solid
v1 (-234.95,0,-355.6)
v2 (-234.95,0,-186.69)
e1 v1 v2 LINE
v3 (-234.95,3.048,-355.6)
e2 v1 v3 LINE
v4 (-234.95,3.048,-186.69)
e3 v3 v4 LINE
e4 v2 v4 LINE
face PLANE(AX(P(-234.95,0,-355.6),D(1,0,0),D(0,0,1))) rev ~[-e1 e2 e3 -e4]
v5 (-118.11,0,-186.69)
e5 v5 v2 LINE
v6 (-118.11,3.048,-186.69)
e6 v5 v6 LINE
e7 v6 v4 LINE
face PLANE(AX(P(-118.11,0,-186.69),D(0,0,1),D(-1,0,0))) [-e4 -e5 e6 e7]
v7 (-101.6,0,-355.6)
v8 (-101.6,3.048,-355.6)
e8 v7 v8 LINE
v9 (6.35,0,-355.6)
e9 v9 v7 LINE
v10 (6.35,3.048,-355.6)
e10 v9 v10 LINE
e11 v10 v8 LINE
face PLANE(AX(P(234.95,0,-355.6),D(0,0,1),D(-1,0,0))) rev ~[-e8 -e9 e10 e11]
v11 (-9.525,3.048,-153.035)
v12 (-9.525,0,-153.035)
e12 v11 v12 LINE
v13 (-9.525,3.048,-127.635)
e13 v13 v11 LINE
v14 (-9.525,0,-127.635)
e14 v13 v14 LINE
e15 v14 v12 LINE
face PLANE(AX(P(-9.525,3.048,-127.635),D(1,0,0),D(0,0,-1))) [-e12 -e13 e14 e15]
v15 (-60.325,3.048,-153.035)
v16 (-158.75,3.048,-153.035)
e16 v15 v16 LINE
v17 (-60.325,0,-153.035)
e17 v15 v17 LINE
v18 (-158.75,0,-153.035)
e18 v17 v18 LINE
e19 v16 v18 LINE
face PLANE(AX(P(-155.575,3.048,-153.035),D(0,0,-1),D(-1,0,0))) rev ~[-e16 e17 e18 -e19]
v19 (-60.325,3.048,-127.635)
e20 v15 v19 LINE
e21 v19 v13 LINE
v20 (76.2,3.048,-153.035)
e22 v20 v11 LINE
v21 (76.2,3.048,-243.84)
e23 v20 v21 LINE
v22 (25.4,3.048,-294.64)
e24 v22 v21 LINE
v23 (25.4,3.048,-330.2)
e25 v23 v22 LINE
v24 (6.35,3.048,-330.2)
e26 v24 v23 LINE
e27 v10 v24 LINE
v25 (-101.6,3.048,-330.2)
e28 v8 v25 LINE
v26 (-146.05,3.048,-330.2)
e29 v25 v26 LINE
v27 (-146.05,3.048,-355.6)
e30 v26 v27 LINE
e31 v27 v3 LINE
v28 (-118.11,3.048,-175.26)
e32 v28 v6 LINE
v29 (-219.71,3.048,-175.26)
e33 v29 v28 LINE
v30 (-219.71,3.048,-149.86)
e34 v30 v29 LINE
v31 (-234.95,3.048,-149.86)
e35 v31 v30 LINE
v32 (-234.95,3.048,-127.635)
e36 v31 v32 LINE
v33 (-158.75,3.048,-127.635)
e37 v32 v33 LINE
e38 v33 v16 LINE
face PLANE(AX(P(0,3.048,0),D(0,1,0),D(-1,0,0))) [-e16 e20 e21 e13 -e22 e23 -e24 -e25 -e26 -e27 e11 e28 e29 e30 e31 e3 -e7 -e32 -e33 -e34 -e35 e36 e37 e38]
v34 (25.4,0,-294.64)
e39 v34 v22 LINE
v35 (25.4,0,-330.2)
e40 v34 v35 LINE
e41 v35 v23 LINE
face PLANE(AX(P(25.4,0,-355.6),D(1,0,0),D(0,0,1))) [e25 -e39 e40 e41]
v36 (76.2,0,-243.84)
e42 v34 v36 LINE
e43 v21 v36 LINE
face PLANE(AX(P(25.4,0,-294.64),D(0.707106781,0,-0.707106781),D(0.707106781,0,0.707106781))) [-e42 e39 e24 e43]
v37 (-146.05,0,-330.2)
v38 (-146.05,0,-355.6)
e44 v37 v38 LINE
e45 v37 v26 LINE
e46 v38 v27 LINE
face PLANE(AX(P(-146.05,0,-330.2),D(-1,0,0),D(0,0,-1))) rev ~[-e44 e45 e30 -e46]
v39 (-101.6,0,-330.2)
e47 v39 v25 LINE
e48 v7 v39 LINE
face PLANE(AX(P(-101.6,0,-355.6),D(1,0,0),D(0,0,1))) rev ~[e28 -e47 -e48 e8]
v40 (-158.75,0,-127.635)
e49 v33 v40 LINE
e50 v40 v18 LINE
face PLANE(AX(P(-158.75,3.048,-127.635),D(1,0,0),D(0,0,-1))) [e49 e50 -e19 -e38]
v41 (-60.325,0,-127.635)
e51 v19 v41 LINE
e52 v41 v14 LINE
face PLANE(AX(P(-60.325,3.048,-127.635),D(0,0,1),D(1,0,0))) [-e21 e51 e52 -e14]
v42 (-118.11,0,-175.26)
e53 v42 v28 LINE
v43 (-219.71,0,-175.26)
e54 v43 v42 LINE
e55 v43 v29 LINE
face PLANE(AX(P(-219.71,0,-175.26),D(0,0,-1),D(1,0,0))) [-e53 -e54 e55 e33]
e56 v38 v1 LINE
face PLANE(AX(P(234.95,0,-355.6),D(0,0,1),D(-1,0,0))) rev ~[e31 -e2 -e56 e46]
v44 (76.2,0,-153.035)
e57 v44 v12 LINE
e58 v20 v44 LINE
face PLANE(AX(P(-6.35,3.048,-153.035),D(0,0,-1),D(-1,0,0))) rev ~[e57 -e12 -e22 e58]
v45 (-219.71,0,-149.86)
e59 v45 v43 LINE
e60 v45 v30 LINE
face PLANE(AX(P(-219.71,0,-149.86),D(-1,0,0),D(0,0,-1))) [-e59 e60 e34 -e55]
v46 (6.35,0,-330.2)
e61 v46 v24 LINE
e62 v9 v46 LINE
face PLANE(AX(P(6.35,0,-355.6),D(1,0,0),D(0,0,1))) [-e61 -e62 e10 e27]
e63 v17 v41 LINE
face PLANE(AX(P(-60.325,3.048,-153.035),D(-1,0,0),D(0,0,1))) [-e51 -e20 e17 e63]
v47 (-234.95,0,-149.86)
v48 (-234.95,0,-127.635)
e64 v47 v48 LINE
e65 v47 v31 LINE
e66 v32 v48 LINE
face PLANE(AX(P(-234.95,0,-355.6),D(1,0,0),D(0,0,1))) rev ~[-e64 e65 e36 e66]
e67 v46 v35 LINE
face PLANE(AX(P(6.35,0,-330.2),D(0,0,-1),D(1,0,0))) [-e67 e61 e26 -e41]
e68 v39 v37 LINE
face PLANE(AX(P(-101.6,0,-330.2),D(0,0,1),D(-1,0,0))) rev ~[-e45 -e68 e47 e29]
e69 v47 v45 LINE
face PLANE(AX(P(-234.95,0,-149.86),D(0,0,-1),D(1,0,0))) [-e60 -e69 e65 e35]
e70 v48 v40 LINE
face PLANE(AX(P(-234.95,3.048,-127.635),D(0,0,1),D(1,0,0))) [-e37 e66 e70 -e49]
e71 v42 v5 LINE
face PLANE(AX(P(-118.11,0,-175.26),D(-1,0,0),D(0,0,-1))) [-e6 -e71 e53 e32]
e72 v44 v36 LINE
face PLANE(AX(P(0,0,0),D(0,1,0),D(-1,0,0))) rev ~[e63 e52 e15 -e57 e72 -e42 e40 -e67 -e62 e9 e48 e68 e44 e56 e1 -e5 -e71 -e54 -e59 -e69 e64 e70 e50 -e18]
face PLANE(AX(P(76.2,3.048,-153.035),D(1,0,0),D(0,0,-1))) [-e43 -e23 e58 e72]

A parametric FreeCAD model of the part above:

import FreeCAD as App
import Part
import Sketcher
Q = App.Units.Quantity

doc = App.newDocument("Part")
params = doc.addObject("Spreadsheet::Sheet", "Params")
for row, (alias, value) in enumerate([
    ("sketch1_height", "28 in"),
    ("sketch1_width", "18.5 in"),
    ("pad1_length", "0.12 in"),
    ("sketch2_width", "4 in"),
    ("sketch2_width2", "3 in"),
    ("sketch2_height", "1 in"),
    ("sketch2_width3", "5.7 in"),
    ("sketch2_height2", "2.4 in"),
    ("pocket1_length", "0.12 in"),
    ("sketch3_height", "1 in"),
    ("sketch3_width", "0.75 in"),
    ("sketch3_width2", "1.75 in"),
    ("pocket2_length", "0.12 in"),
    ("sketch4_width", "2 in"),
    ("sketch4_width2", "3 in"),
    ("sketch4_height", "1 in"),
    ("sketch4_width3", "4 in"),
    ("sketch4_width4", "5.7 in"),
    ("sketch5_width", "3.5 in"),
    ("sketch5_height", "3.575 in"),
], start=1):
    params.set(f"A{row}", alias)
    params.set(f"B{row}", "=" + value)
    params.setAlias(f"B{row}", alias)

body = doc.addObject("PartDesign::Body", "Body")

# Sketch on XZ plane
sketch1 = body.newObject("Sketcher::SketchObject", "Sketch")
sketch1.AttachmentSupport = (doc.getObject("XZ_Plane"), [""])
sketch1.MapMode = "FlatFace"
sketch1.addGeometry(Part.LineSegment(App.Vector(-235, -356, 0), App.Vector(-235, 356, 0)), False)
sketch1.addGeometry(Part.LineSegment(App.Vector(-235, 356, 0), App.Vector(235, 356, 0)), False)
sketch1.addGeometry(Part.LineSegment(App.Vector(235, 356, 0), App.Vector(235, -356, 0)), False)
sketch1.addGeometry(Part.LineSegment(App.Vector(235, -356, 0), App.Vector(-235, -356, 0)), False)
sketch1.addConstraint(Sketcher.Constraint("Coincident", 0, 2, 1, 1))
sketch1.addConstraint(Sketcher.Constraint("Coincident", 1, 2, 2, 1))
sketch1.addConstraint(Sketcher.Constraint("Coincident", 2, 2, 3, 1))
sketch1.addConstraint(Sketcher.Constraint("Coincident", 3, 2, 0, 1))
sketch1.addConstraint(Sketcher.Constraint("Vertical", 0))
sketch1.addConstraint(Sketcher.Constraint("Horizontal", 1))
sketch1.addConstraint(Sketcher.Constraint("Vertical", 2))
sketch1.addConstraint(Sketcher.Constraint("Horizontal", 3))
sketch1.addConstraint(Sketcher.Constraint("Symmetric", 0, 2, 2, 2, -1, 1))
sketch1.addConstraint(Sketcher.Constraint("DistanceY", 0, 1, 0, 2, Q("28 in")))
sketch1.addConstraint(Sketcher.Constraint("DistanceX", 1, 1, 1, 2, Q("18.5 in")))
sketch1.setExpression("Constraints[9]", "Params.sketch1_height")
sketch1.setExpression("Constraints[10]", "Params.sketch1_width")
pad1 = body.newObject("PartDesign::Pad", "Pad")
pad1.Profile = sketch1
pad1.setExpression("Length", "Params.pad1_length")
pad1.Reversed = True

# Sketch on XZ plane
sketch2 = body.newObject("Sketcher::SketchObject", "Sketch001")
sketch2.AttachmentSupport = (doc.getObject("XZ_Plane"), [""])
sketch2.MapMode = "FlatFace"
sketch2.addGeometry(Part.LineSegment(App.Vector(-118, 187, 0), App.Vector(-235, 187, 0)), False)
sketch2.addGeometry(Part.LineSegment(App.Vector(-235, 187, 0), App.Vector(-235, 150, 0)), False)
sketch2.addGeometry(Part.LineSegment(App.Vector(-235, 150, 0), App.Vector(-220, 150, 0)), False)
sketch2.addGeometry(Part.LineSegment(App.Vector(-220, 150, 0), App.Vector(-220, 175, 0)), False)
sketch2.addGeometry(Part.LineSegment(App.Vector(-220, 175, 0), App.Vector(-118, 175, 0)), False)
sketch2.addGeometry(Part.LineSegment(App.Vector(-118, 175, 0), App.Vector(-118, 187, 0)), False)
sketch2.addGeometry(Part.LineSegment(App.Vector(235, 356, 0), App.Vector(25, 356, 0)), False)
sketch2.addGeometry(Part.LineSegment(App.Vector(25, 356, 0), App.Vector(25, 295, 0)), False)
sketch2.addGeometry(Part.LineSegment(App.Vector(25, 295, 0), App.Vector(165, 155, 0)), False)
sketch2.addGeometry(Part.LineSegment(App.Vector(165, 155, 0), App.Vector(165, 89, 0)), False)
sketch2.addGeometry(Part.LineSegment(App.Vector(165, 89, 0), App.Vector(20, 89, 0)), False)
sketch2.addGeometry(Part.LineSegment(App.Vector(20, 89, 0), App.Vector(20, -130, 0)), False)
sketch2.addGeometry(Part.LineSegment(App.Vector(20, -130, 0), App.Vector(165, -130, 0)), False)
sketch2.addGeometry(Part.LineSegment(App.Vector(165, -130, 0), App.Vector(165, -155, 0)), False)
sketch2.addGeometry(Part.LineSegment(App.Vector(165, -155, 0), App.Vector(25, -295, 0)), False)
sketch2.addGeometry(Part.LineSegment(App.Vector(25, -295, 0), App.Vector(25, -356, 0)), False)
sketch2.addGeometry(Part.LineSegment(App.Vector(25, -356, 0), App.Vector(235, -356, 0)), False)
sketch2.addGeometry(Part.LineSegment(App.Vector(235, -356, 0), App.Vector(235, 356, 0)), False)
sketch2.addGeometry(Part.LineSegment(App.Vector(-159, 36, 0), App.Vector(-235, 36, 0)), False)
sketch2.addGeometry(Part.LineSegment(App.Vector(-235, 36, 0), App.Vector(-235, -43, 0)), False)
sketch2.addGeometry(Part.LineSegment(App.Vector(-235, -43, 0), App.Vector(-159, -43, 0)), False)
sketch2.addGeometry(Part.LineSegment(App.Vector(-159, -43, 0), App.Vector(-159, 36, 0)), False)
sketch2.addGeometry(Part.LineSegment(App.Vector(-220, -150, 0), App.Vector(-235, -150, 0)), False)
sketch2.addGeometry(Part.LineSegment(App.Vector(-235, -150, 0), App.Vector(-235, -187, 0)), False)
sketch2.addGeometry(Part.LineSegment(App.Vector(-235, -187, 0), App.Vector(-118, -187, 0)), False)
sketch2.addGeometry(Part.LineSegment(App.Vector(-118, -187, 0), App.Vector(-118, -175, 0)), False)
sketch2.addGeometry(Part.LineSegment(App.Vector(-118, -175, 0), App.Vector(-220, -175, 0)), False)
sketch2.addGeometry(Part.LineSegment(App.Vector(-220, -175, 0), App.Vector(-220, -150, 0)), False)
sketch2.addConstraint(Sketcher.Constraint("Coincident", 0, 2, 1, 1))
sketch2.addConstraint(Sketcher.Constraint("Coincident", 1, 2, 2, 1))
sketch2.addConstraint(Sketcher.Constraint("Coincident", 2, 2, 3, 1))
sketch2.addConstraint(Sketcher.Constraint("Coincident", 3, 2, 4, 1))
sketch2.addConstraint(Sketcher.Constraint("Coincident", 4, 2, 5, 1))
sketch2.addConstraint(Sketcher.Constraint("Coincident", 5, 2, 0, 1))
sketch2.addConstraint(Sketcher.Constraint("Coincident", 6, 2, 7, 1))
sketch2.addConstraint(Sketcher.Constraint("Coincident", 7, 2, 8, 1))
sketch2.addConstraint(Sketcher.Constraint("Coincident", 8, 2, 9, 1))
sketch2.addConstraint(Sketcher.Constraint("Coincident", 9, 2, 10, 1))
sketch2.addConstraint(Sketcher.Constraint("Coincident", 10, 2, 11, 1))
sketch2.addConstraint(Sketcher.Constraint("Coincident", 11, 2, 12, 1))
sketch2.addConstraint(Sketcher.Constraint("Coincident", 12, 2, 13, 1))
sketch2.addConstraint(Sketcher.Constraint("Coincident", 13, 2, 14, 1))
sketch2.addConstraint(Sketcher.Constraint("Coincident", 14, 2, 15, 1))
sketch2.addConstraint(Sketcher.Constraint("Coincident", 15, 2, 16, 1))
sketch2.addConstraint(Sketcher.Constraint("Coincident", 16, 2, 17, 1))
sketch2.addConstraint(Sketcher.Constraint("Coincident", 17, 2, 6, 1))
sketch2.addConstraint(Sketcher.Constraint("Coincident", 18, 2, 19, 1))
sketch2.addConstraint(Sketcher.Constraint("Coincident", 19, 2, 20, 1))
sketch2.addConstraint(Sketcher.Constraint("Coincident", 20, 2, 21, 1))
sketch2.addConstraint(Sketcher.Constraint("Coincident", 21, 2, 18, 1))
sketch2.addConstraint(Sketcher.Constraint("Coincident", 22, 2, 23, 1))
sketch2.addConstraint(Sketcher.Constraint("Coincident", 23, 2, 24, 1))
sketch2.addConstraint(Sketcher.Constraint("Coincident", 24, 2, 25, 1))
sketch2.addConstraint(Sketcher.Constraint("Coincident", 25, 2, 26, 1))
sketch2.addConstraint(Sketcher.Constraint("Coincident", 26, 2, 27, 1))
sketch2.addConstraint(Sketcher.Constraint("Coincident", 27, 2, 22, 1))
sketch2.addConstraint(Sketcher.Constraint("Horizontal", 0))
sketch2.addConstraint(Sketcher.Constraint("Vertical", 1))
sketch2.addConstraint(Sketcher.Constraint("Horizontal", 2))
sketch2.addConstraint(Sketcher.Constraint("Vertical", 3))
sketch2.addConstraint(Sketcher.Constraint("Horizontal", 4))
sketch2.addConstraint(Sketcher.Constraint("Vertical", 5))
sketch2.addConstraint(Sketcher.Constraint("Horizontal", 6))
sketch2.addConstraint(Sketcher.Constraint("Vertical", 7))
sketch2.addConstraint(Sketcher.Constraint("Vertical", 9))
sketch2.addConstraint(Sketcher.Constraint("Horizontal", 10))
sketch2.addConstraint(Sketcher.Constraint("Vertical", 11))
sketch2.addConstraint(Sketcher.Constraint("Horizontal", 12))
sketch2.addConstraint(Sketcher.Constraint("Vertical", 13))
sketch2.addConstraint(Sketcher.Constraint("Vertical", 15))
sketch2.addConstraint(Sketcher.Constraint("Horizontal", 16))
sketch2.addConstraint(Sketcher.Constraint("Vertical", 17))
sketch2.addConstraint(Sketcher.Constraint("Horizontal", 18))
sketch2.addConstraint(Sketcher.Constraint("Vertical", 19))
sketch2.addConstraint(Sketcher.Constraint("Horizontal", 20))
sketch2.addConstraint(Sketcher.Constraint("Vertical", 21))
sketch2.addConstraint(Sketcher.Constraint("Horizontal", 22))
sketch2.addConstraint(Sketcher.Constraint("Vertical", 23))
sketch2.addConstraint(Sketcher.Constraint("Horizontal", 24))
sketch2.addConstraint(Sketcher.Constraint("Vertical", 25))
sketch2.addConstraint(Sketcher.Constraint("Horizontal", 26))
sketch2.addConstraint(Sketcher.Constraint("Vertical", 27))
sketch2.addConstraint(Sketcher.Constraint("Symmetric", 8, 2, 13, 2, -1))
sketch2.addConstraint(Sketcher.Constraint("Symmetric", 7, 2, 14, 2, -1))
sketch2.addConstraint(Sketcher.Constraint("Symmetric", 1, 2, 22, 2, -1))
sketch2.addConstraint(Sketcher.Constraint("Symmetric", 5, 2, 24, 2, -1))
sketch2.addConstraint(Sketcher.Constraint("Symmetric", 3, 2, 26, 2, -1))
sketch2.addConstraint(Sketcher.Constraint("Perpendicular", 8, 14))
sketch2.addConstraint(Sketcher.Constraint("Vertical", 1, 2, 18, 2))
sketch2.addConstraint(Sketcher.Constraint("Equal", 3, 13))
sketch2.addConstraint(Sketcher.Constraint("Equal", 7, 15))
sketch2.addConstraint(Sketcher.Constraint("DistanceX", 4, 1, 4, 2, Q("4 in")))
sketch2.addConstraint(Sketcher.Constraint("DistanceX", 18, 2, 18, 1, Q("3 in")))
sketch2.addConstraint(Sketcher.Constraint("DistanceY", 3, 1, 3, 2, Q("1 in")))
sketch2.addConstraint(Sketcher.Constraint("DistanceX", 10, 2, 10, 1, Q("5.7 in")))
sketch2.addConstraint(Sketcher.Constraint("DistanceY", 7, 2, 7, 1, Q("2.4 in")))
sketch2.addConstraint(Sketcher.Constraint("DistanceX", -1, 1, 6, 2, Q("1 in")))
sketch2.addConstraint(Sketcher.Constraint("DistanceX", 6, 2, 6, 1, Q("8.25 in")))
sketch2.addConstraint(Sketcher.Constraint("DistanceY", -1, 1, 18, 2, Q("1.4 in")))
sketch2.addConstraint(Sketcher.Constraint("DistanceY", 19, 2, -1, 1, Q("1.7 in")))
sketch2.addConstraint(Sketcher.Constraint("DistanceY", 18, 2, 1, 2, Q("4.5 in")))
sketch2.addConstraint(Sketcher.Constraint("DistanceX", 2, 2, 20, 2, Q("2.4 in")))
sketch2.addConstraint(Sketcher.Constraint("DistanceY", 17, 1, 17, 2, Q("28 in")))
sketch2.addConstraint(Sketcher.Constraint("DistanceX", 13, 2, 16, 2, Q("2.75 in")))
sketch2.addConstraint(Sketcher.Constraint("DistanceY", 9, 2, 9, 1, Q("2.6 in")))
sketch2.addConstraint(Sketcher.Constraint("DistanceY", 1, 2, 1, 1, Q("1.45 in")))
sketch2.addConstraint(Sketcher.Constraint("DistanceX", 0, 2, -1, 1, Q("9.25 in")))
sketch2.setExpression("Constraints[63]", "Params.sketch2_width")
sketch2.setExpression("Constraints[64]", "Params.sketch2_width2")
sketch2.setExpression("Constraints[65]", "Params.sketch2_height")
sketch2.setExpression("Constraints[66]", "Params.sketch2_width3")
sketch2.setExpression("Constraints[67]", "Params.sketch2_height2")
pocket1 = body.newObject("PartDesign::Pocket", "Pocket")
pocket1.Profile = sketch2
pocket1.setExpression("Length", "Params.pocket1_length")

# Sketch on XZ plane
sketch3 = body.newObject("Sketcher::SketchObject", "Sketch002")
sketch3.AttachmentSupport = (doc.getObject("XZ_Plane"), [""])
sketch3.MapMode = "FlatFace"
sketch3.addGeometry(Part.LineSegment(App.Vector(25, 330, 0), App.Vector(25, 356, 0)), False)
sketch3.addGeometry(Part.LineSegment(App.Vector(25, 356, 0), App.Vector(6, 356, 0)), False)
sketch3.addGeometry(Part.LineSegment(App.Vector(6, 356, 0), App.Vector(6, 330, 0)), False)
sketch3.addGeometry(Part.LineSegment(App.Vector(6, 330, 0), App.Vector(25, 330, 0)), False)
sketch3.addGeometry(Part.LineSegment(App.Vector(-102, 330, 0), App.Vector(-102, 356, 0)), False)
sketch3.addGeometry(Part.LineSegment(App.Vector(-102, 356, 0), App.Vector(-146, 356, 0)), False)
sketch3.addGeometry(Part.LineSegment(App.Vector(-146, 356, 0), App.Vector(-146, 330, 0)), False)
sketch3.addGeometry(Part.LineSegment(App.Vector(-146, 330, 0), App.Vector(-102, 330, 0)), False)
sketch3.addGeometry(Part.LineSegment(App.Vector(25, -356, 0), App.Vector(25, -330, 0)), False)
sketch3.addGeometry(Part.LineSegment(App.Vector(25, -330, 0), App.Vector(6, -330, 0)), False)
sketch3.addGeometry(Part.LineSegment(App.Vector(6, -330, 0), App.Vector(6, -356, 0)), False)
sketch3.addGeometry(Part.LineSegment(App.Vector(6, -356, 0), App.Vector(25, -356, 0)), False)
sketch3.addGeometry(Part.LineSegment(App.Vector(-146, -356, 0), App.Vector(-102, -356, 0)), False)
sketch3.addGeometry(Part.LineSegment(App.Vector(-102, -356, 0), App.Vector(-102, -330, 0)), False)
sketch3.addGeometry(Part.LineSegment(App.Vector(-102, -330, 0), App.Vector(-146, -330, 0)), False)
sketch3.addGeometry(Part.LineSegment(App.Vector(-146, -330, 0), App.Vector(-146, -356, 0)), False)
sketch3.addConstraint(Sketcher.Constraint("Coincident", 0, 2, 1, 1))
sketch3.addConstraint(Sketcher.Constraint("Coincident", 1, 2, 2, 1))
sketch3.addConstraint(Sketcher.Constraint("Coincident", 2, 2, 3, 1))
sketch3.addConstraint(Sketcher.Constraint("Coincident", 3, 2, 0, 1))
sketch3.addConstraint(Sketcher.Constraint("Coincident", 4, 2, 5, 1))
sketch3.addConstraint(Sketcher.Constraint("Coincident", 5, 2, 6, 1))
sketch3.addConstraint(Sketcher.Constraint("Coincident", 6, 2, 7, 1))
sketch3.addConstraint(Sketcher.Constraint("Coincident", 7, 2, 4, 1))
sketch3.addConstraint(Sketcher.Constraint("Coincident", 8, 2, 9, 1))
sketch3.addConstraint(Sketcher.Constraint("Coincident", 9, 2, 10, 1))
sketch3.addConstraint(Sketcher.Constraint("Coincident", 10, 2, 11, 1))
sketch3.addConstraint(Sketcher.Constraint("Coincident", 11, 2, 8, 1))
sketch3.addConstraint(Sketcher.Constraint("Coincident", 12, 2, 13, 1))
sketch3.addConstraint(Sketcher.Constraint("Coincident", 13, 2, 14, 1))
sketch3.addConstraint(Sketcher.Constraint("Coincident", 14, 2, 15, 1))
sketch3.addConstraint(Sketcher.Constraint("Coincident", 15, 2, 12, 1))
sketch3.addConstraint(Sketcher.Constraint("Vertical", 0))
sketch3.addConstraint(Sketcher.Constraint("Horizontal", 1))
sketch3.addConstraint(Sketcher.Constraint("Vertical", 2))
sketch3.addConstraint(Sketcher.Constraint("Horizontal", 3))
sketch3.addConstraint(Sketcher.Constraint("Vertical", 4))
sketch3.addConstraint(Sketcher.Constraint("Horizontal", 5))
sketch3.addConstraint(Sketcher.Constraint("Vertical", 6))
sketch3.addConstraint(Sketcher.Constraint("Horizontal", 7))
sketch3.addConstraint(Sketcher.Constraint("Vertical", 8))
sketch3.addConstraint(Sketcher.Constraint("Horizontal", 9))
sketch3.addConstraint(Sketcher.Constraint("Vertical", 10))
sketch3.addConstraint(Sketcher.Constraint("Horizontal", 11))
sketch3.addConstraint(Sketcher.Constraint("Horizontal", 12))
sketch3.addConstraint(Sketcher.Constraint("Vertical", 13))
sketch3.addConstraint(Sketcher.Constraint("Horizontal", 14))
sketch3.addConstraint(Sketcher.Constraint("Vertical", 15))
sketch3.addConstraint(Sketcher.Constraint("Symmetric", 3, 2, 8, 2, -1))
sketch3.addConstraint(Sketcher.Constraint("Symmetric", 1, 2, 10, 2, -1))
sketch3.addConstraint(Sketcher.Constraint("Symmetric", 4, 2, 12, 2, -1))
sketch3.addConstraint(Sketcher.Constraint("Symmetric", 6, 2, 14, 2, -1))
sketch3.addConstraint(Sketcher.Constraint("Horizontal", 1, 2, 4, 2))
sketch3.addConstraint(Sketcher.Constraint("Horizontal", 3, 2, 6, 2))
sketch3.addConstraint(Sketcher.Constraint("DistanceY", 0, 1, 0, 2, Q("1 in")))
sketch3.addConstraint(Sketcher.Constraint("DistanceX", -1, 1, 0, 2, Q("1 in")))
sketch3.addConstraint(Sketcher.Constraint("DistanceX", 1, 2, 1, 1, Q("0.75 in")))
sketch3.addConstraint(Sketcher.Constraint("DistanceX", 5, 2, 5, 1, Q("1.75 in")))
sketch3.addConstraint(Sketcher.Constraint("DistanceY", -1, 1, 0, 2, Q("14 in")))
sketch3.addConstraint(Sketcher.Constraint("DistanceX", 4, 2, -1, 1, Q("4 in")))
sketch3.setExpression("Constraints[38]", "Params.sketch3_height")
sketch3.setExpression("Constraints[40]", "Params.sketch3_width")
sketch3.setExpression("Constraints[41]", "Params.sketch3_width2")
pocket2 = body.newObject("PartDesign::Pocket", "Pocket001")
pocket2.Profile = sketch3
pocket2.setExpression("Length", "Params.pocket2_length")

# Sketch on XZ plane
sketch4 = body.newObject("Sketcher::SketchObject", "Sketch003")
sketch4.AttachmentSupport = (doc.getObject("XZ_Plane"), [""])
sketch4.MapMode = "FlatFace"
sketch4.AttachmentOffset = App.Placement(App.Vector(0, 0, -0.12 * 25.4), App.Rotation())
sketch4.addGeometry(Part.LineSegment(App.Vector(165, 89, 0), App.Vector(20, 89, 0)), False)
sketch4.addGeometry(Part.LineSegment(App.Vector(20, 89, 0), App.Vector(20, -130, 0)), False)
sketch4.addGeometry(Part.LineSegment(App.Vector(20, -130, 0), App.Vector(165, -130, 0)), False)
sketch4.addGeometry(Part.LineSegment(App.Vector(165, -130, 0), App.Vector(165, -153, 0)), False)
sketch4.addGeometry(Part.LineSegment(App.Vector(165, -153, 0), App.Vector(-10, -153, 0)), False)
sketch4.addGeometry(Part.LineSegment(App.Vector(-10, -153, 0), App.Vector(-10, -128, 0)), False)
sketch4.addGeometry(Part.LineSegment(App.Vector(-10, -128, 0), App.Vector(-60, -128, 0)), False)
sketch4.addGeometry(Part.LineSegment(App.Vector(-60, -128, 0), App.Vector(-60, -153, 0)), False)
sketch4.addGeometry(Part.LineSegment(App.Vector(-60, -153, 0), App.Vector(-159, -153, 0)), False)
sketch4.addGeometry(Part.LineSegment(App.Vector(-159, -153, 0), App.Vector(-159, -128, 0)), False)
sketch4.addGeometry(Part.LineSegment(App.Vector(-159, -128, 0), App.Vector(-235, -128, 0)), False)
sketch4.addGeometry(Part.LineSegment(App.Vector(-235, -128, 0), App.Vector(-235, -43, 0)), False)
sketch4.addGeometry(Part.LineSegment(App.Vector(-235, -43, 0), App.Vector(-159, -43, 0)), False)
sketch4.addGeometry(Part.LineSegment(App.Vector(-159, -43, 0), App.Vector(-159, 36, 0)), False)
sketch4.addGeometry(Part.LineSegment(App.Vector(-159, 36, 0), App.Vector(-235, 36, 0)), False)
sketch4.addGeometry(Part.LineSegment(App.Vector(-235, 36, 0), App.Vector(-235, 150, 0)), False)
sketch4.addGeometry(Part.LineSegment(App.Vector(-235, 150, 0), App.Vector(-220, 150, 0)), False)
sketch4.addGeometry(Part.LineSegment(App.Vector(-220, 150, 0), App.Vector(-220, 175, 0)), False)
sketch4.addGeometry(Part.LineSegment(App.Vector(-220, 175, 0), App.Vector(-118, 175, 0)), False)
sketch4.addGeometry(Part.LineSegment(App.Vector(-118, 175, 0), App.Vector(-118, 187, 0)), False)
sketch4.addGeometry(Part.LineSegment(App.Vector(-118, 187, 0), App.Vector(-235, 187, 0)), False)
sketch4.addGeometry(Part.LineSegment(App.Vector(-235, 187, 0), App.Vector(-235, 356, 0)), False)
sketch4.addGeometry(Part.LineSegment(App.Vector(-235, 356, 0), App.Vector(-146, 356, 0)), False)
sketch4.addGeometry(Part.LineSegment(App.Vector(-146, 356, 0), App.Vector(-146, 330, 0)), False)
sketch4.addGeometry(Part.LineSegment(App.Vector(-146, 330, 0), App.Vector(-102, 330, 0)), False)
sketch4.addGeometry(Part.LineSegment(App.Vector(-102, 330, 0), App.Vector(-102, 356, 0)), False)
sketch4.addGeometry(Part.LineSegment(App.Vector(-102, 356, 0), App.Vector(6, 356, 0)), False)
sketch4.addGeometry(Part.LineSegment(App.Vector(6, 356, 0), App.Vector(6, 330, 0)), False)
sketch4.addGeometry(Part.LineSegment(App.Vector(6, 330, 0), App.Vector(25, 330, 0)), False)
sketch4.addGeometry(Part.LineSegment(App.Vector(25, 330, 0), App.Vector(25, 295, 0)), False)
sketch4.addGeometry(Part.LineSegment(App.Vector(25, 295, 0), App.Vector(165, 155, 0)), False)
sketch4.addGeometry(Part.LineSegment(App.Vector(165, 155, 0), App.Vector(165, 89, 0)), False)
sketch4.addConstraint(Sketcher.Constraint("Coincident", 0, 2, 1, 1))
sketch4.addConstraint(Sketcher.Constraint("Coincident", 1, 2, 2, 1))
sketch4.addConstraint(Sketcher.Constraint("Coincident", 2, 2, 3, 1))
sketch4.addConstraint(Sketcher.Constraint("Coincident", 3, 2, 4, 1))
sketch4.addConstraint(Sketcher.Constraint("Coincident", 4, 2, 5, 1))
sketch4.addConstraint(Sketcher.Constraint("Coincident", 5, 2, 6, 1))
sketch4.addConstraint(Sketcher.Constraint("Coincident", 6, 2, 7, 1))
sketch4.addConstraint(Sketcher.Constraint("Coincident", 7, 2, 8, 1))
sketch4.addConstraint(Sketcher.Constraint("Coincident", 8, 2, 9, 1))
sketch4.addConstraint(Sketcher.Constraint("Coincident", 9, 2, 10, 1))
sketch4.addConstraint(Sketcher.Constraint("Coincident", 10, 2, 11, 1))
sketch4.addConstraint(Sketcher.Constraint("Coincident", 11, 2, 12, 1))
sketch4.addConstraint(Sketcher.Constraint("Coincident", 12, 2, 13, 1))
sketch4.addConstraint(Sketcher.Constraint("Coincident", 13, 2, 14, 1))
sketch4.addConstraint(Sketcher.Constraint("Coincident", 14, 2, 15, 1))
sketch4.addConstraint(Sketcher.Constraint("Coincident", 15, 2, 16, 1))
sketch4.addConstraint(Sketcher.Constraint("Coincident", 16, 2, 17, 1))
sketch4.addConstraint(Sketcher.Constraint("Coincident", 17, 2, 18, 1))
sketch4.addConstraint(Sketcher.Constraint("Coincident", 18, 2, 19, 1))
sketch4.addConstraint(Sketcher.Constraint("Coincident", 19, 2, 20, 1))
sketch4.addConstraint(Sketcher.Constraint("Coincident", 20, 2, 21, 1))
sketch4.addConstraint(Sketcher.Constraint("Coincident", 21, 2, 22, 1))
sketch4.addConstraint(Sketcher.Constraint("Coincident", 22, 2, 23, 1))
sketch4.addConstraint(Sketcher.Constraint("Coincident", 23, 2, 24, 1))
sketch4.addConstraint(Sketcher.Constraint("Coincident", 24, 2, 25, 1))
sketch4.addConstraint(Sketcher.Constraint("Coincident", 25, 2, 26, 1))
sketch4.addConstraint(Sketcher.Constraint("Coincident", 26, 2, 27, 1))
sketch4.addConstraint(Sketcher.Constraint("Coincident", 27, 2, 28, 1))
sketch4.addConstraint(Sketcher.Constraint("Coincident", 28, 2, 29, 1))
sketch4.addConstraint(Sketcher.Constraint("Coincident", 29, 2, 30, 1))
sketch4.addConstraint(Sketcher.Constraint("Coincident", 30, 2, 31, 1))
sketch4.addConstraint(Sketcher.Constraint("Coincident", 31, 2, 0, 1))
sketch4.addConstraint(Sketcher.Constraint("Horizontal", 0))
sketch4.addConstraint(Sketcher.Constraint("Vertical", 1))
sketch4.addConstraint(Sketcher.Constraint("Horizontal", 2))
sketch4.addConstraint(Sketcher.Constraint("Vertical", 3))
sketch4.addConstraint(Sketcher.Constraint("Horizontal", 4))
sketch4.addConstraint(Sketcher.Constraint("Vertical", 5))
sketch4.addConstraint(Sketcher.Constraint("Horizontal", 6))
sketch4.addConstraint(Sketcher.Constraint("Vertical", 7))
sketch4.addConstraint(Sketcher.Constraint("Horizontal", 8))
sketch4.addConstraint(Sketcher.Constraint("Vertical", 9))
sketch4.addConstraint(Sketcher.Constraint("Horizontal", 10))
sketch4.addConstraint(Sketcher.Constraint("Vertical", 11))
sketch4.addConstraint(Sketcher.Constraint("Horizontal", 12))
sketch4.addConstraint(Sketcher.Constraint("Vertical", 13))
sketch4.addConstraint(Sketcher.Constraint("Horizontal", 14))
sketch4.addConstraint(Sketcher.Constraint("Vertical", 15))
sketch4.addConstraint(Sketcher.Constraint("Horizontal", 16))
sketch4.addConstraint(Sketcher.Constraint("Vertical", 17))
sketch4.addConstraint(Sketcher.Constraint("Horizontal", 18))
sketch4.addConstraint(Sketcher.Constraint("Vertical", 19))
sketch4.addConstraint(Sketcher.Constraint("Horizontal", 20))
sketch4.addConstraint(Sketcher.Constraint("Vertical", 21))
sketch4.addConstraint(Sketcher.Constraint("Horizontal", 22))
sketch4.addConstraint(Sketcher.Constraint("Vertical", 23))
sketch4.addConstraint(Sketcher.Constraint("Horizontal", 24))
sketch4.addConstraint(Sketcher.Constraint("Vertical", 25))
sketch4.addConstraint(Sketcher.Constraint("Horizontal", 26))
sketch4.addConstraint(Sketcher.Constraint("Vertical", 27))
sketch4.addConstraint(Sketcher.Constraint("Horizontal", 28))
sketch4.addConstraint(Sketcher.Constraint("Vertical", 29))
sketch4.addConstraint(Sketcher.Constraint("Vertical", 31))
sketch4.addConstraint(Sketcher.Constraint("Horizontal", 4, 2, 7, 2))
sketch4.addConstraint(Sketcher.Constraint("Horizontal", 6, 2, 9, 2))
sketch4.addConstraint(Sketcher.Constraint("Horizontal", 22, 2, 25, 2))
sketch4.addConstraint(Sketcher.Constraint("Horizontal", 24, 2, 27, 2))
sketch4.addConstraint(Sketcher.Constraint("Vertical", 9, 2, 12, 2))
sketch4.addConstraint(Sketcher.Constraint("Vertical", 11, 2, 14, 2))
sketch4.addConstraint(Sketcher.Constraint("Vertical", 15, 2, 20, 2))
sketch4.addConstraint(Sketcher.Constraint("Vertical", 3, 2, 30, 2))
sketch4.addConstraint(Sketcher.Constraint("Equal", 9, 17))
sketch4.addConstraint(Sketcher.Constraint("Equal", 17, 23))
sketch4.addConstraint(Sketcher.Constraint("DistanceX", 6, 2, 6, 1, Q("2 in")))
sketch4.addConstraint(Sketcher.Constraint("DistanceX", 10, 2, 10, 1, Q("3 in")))
sketch4.addConstraint(Sketcher.Constraint("DistanceY", 5, 1, 5, 2, Q("1 in")))
sketch4.addConstraint(Sketcher.Constraint("DistanceX", -1, 1, 28, 2, Q("1 in")))
sketch4.addConstraint(Sketcher.Constraint("DistanceX", 18, 1, 18, 2, Q("4 in")))
sketch4.addConstraint(Sketcher.Constraint("DistanceX", 0, 2, 0, 1, Q("5.7 in")))
sketch4.addConstraint(Sketcher.Constraint("DistanceX", 16, 1, 16, 2, Q("0.6 in")))
sketch4.addConstraint(Sketcher.Constraint("DistanceX", 22, 1, 22, 2, Q("3.5 in")))
sketch4.addConstraint(Sketcher.Constraint("DistanceY", 1, 2, 1, 1, Q("8.6 in")))
sketch4.addConstraint(Sketcher.Constraint("DistanceY", 13, 1, 13, 2, Q("3.1 in")))
sketch4.addConstraint(Sketcher.Constraint("DistanceY", 15, 1, 15, 2, Q("4.5 in")))
sketch4.addConstraint(Sketcher.Constraint("DistanceY", 29, 2, 29, 1, Q("1.4 in")))
sketch4.addConstraint(Sketcher.Constraint("DistanceY", 31, 2, 31, 1, Q("2.6 in")))
sketch4.addConstraint(Sketcher.Constraint("DistanceY", -1, 1, 21, 2, Q("14 in")))
sketch4.addConstraint(Sketcher.Constraint("DistanceX", 24, 2, -1, 1, Q("4 in")))
sketch4.addConstraint(Sketcher.Constraint("Angle", 30, Q("-45 deg")))
sketch4.addConstraint(Sketcher.Constraint("DistanceX", 22, 2, 26, 2, Q("6 in")))
sketch4.addConstraint(Sketcher.Constraint("DistanceX", 24, 1, 24, 2, Q("1.75 in")))
sketch4.addConstraint(Sketcher.Constraint("DistanceY", 19, 1, 19, 2, Q("0.45 in")))
sketch4.addConstraint(Sketcher.Constraint("DistanceY", 21, 1, 21, 2, Q("6.65 in")))
sketch4.addConstraint(Sketcher.Constraint("DistanceX", -1, 1, 0, 2, Q("0.8 in")))
sketch4.addConstraint(Sketcher.Constraint("DistanceX", 4, 2, 4, 1, Q("6.875 in")))
sketch4.addConstraint(Sketcher.Constraint("DistanceY", 3, 2, 3, 1, Q("0.925 in")))
sketch4.setExpression("Constraints[73]", "Params.sketch4_width")
sketch4.setExpression("Constraints[74]", "Params.sketch4_width2")
sketch4.setExpression("Constraints[75]", "Params.sketch4_height")
sketch4.setExpression("Constraints[77]", "Params.sketch4_width3")
sketch4.setExpression("Constraints[78]", "Params.sketch4_width4")
pocket3 = body.newObject("PartDesign::Pocket", "Pocket002")
pocket3.Profile = sketch4
pocket3.Type = "ThroughAll"
pocket3.Reversed = True

# Sketch on XZ plane
sketch5 = body.newObject("Sketcher::SketchObject", "Sketch004")
sketch5.AttachmentSupport = (doc.getObject("XZ_Plane"), [""])
sketch5.MapMode = "FlatFace"
sketch5.AttachmentOffset = App.Placement(App.Vector(0, 0, -0.12 * 25.4), App.Rotation())
sketch5.addGeometry(Part.LineSegment(App.Vector(76.2, -243.8, 0), App.Vector(76.2, -153, 0)), False)
sketch5.addGeometry(Part.LineSegment(App.Vector(76.2, -153, 0), App.Vector(165.1, -153, 0)), False)
sketch5.addGeometry(Part.LineSegment(App.Vector(165.1, -153, 0), App.Vector(165.1, -154.9, 0)), False)
sketch5.addGeometry(Part.LineSegment(App.Vector(165.1, -154.9, 0), App.Vector(76.2, -243.8, 0)), False)
sketch5.addConstraint(Sketcher.Constraint("Coincident", 0, 2, 1, 1))
sketch5.addConstraint(Sketcher.Constraint("Coincident", 1, 2, 2, 1))
sketch5.addConstraint(Sketcher.Constraint("Coincident", 2, 2, 3, 1))
sketch5.addConstraint(Sketcher.Constraint("Coincident", 3, 2, 0, 1))
sketch5.addConstraint(Sketcher.Constraint("Vertical", 0))
sketch5.addConstraint(Sketcher.Constraint("Horizontal", 1))
sketch5.addConstraint(Sketcher.Constraint("Vertical", 2))
sketch5.addConstraint(Sketcher.Constraint("DistanceX", 1, 1, 1, 2, Q("3.5 in")))
sketch5.addConstraint(Sketcher.Constraint("DistanceY", 3, 2, 2, 2, Q("3.5 in")))
sketch5.addConstraint(Sketcher.Constraint("DistanceX", -1, 1, 0, 2, Q("3 in")))
sketch5.addConstraint(Sketcher.Constraint("DistanceY", 2, 2, -1, 1, Q("6.1 in")))
sketch5.addConstraint(Sketcher.Constraint("DistanceY", 0, 1, 0, 2, Q("3.575 in")))
sketch5.setExpression("Constraints[7]", "Params.sketch5_width")
sketch5.setExpression("Constraints[11]", "Params.sketch5_height")
pocket4 = body.newObject("PartDesign::Pocket", "Pocket003")
pocket4.Profile = sketch5
pocket4.Type = "ThroughAll"
pocket4.Reversed = True

doc.recompute()
